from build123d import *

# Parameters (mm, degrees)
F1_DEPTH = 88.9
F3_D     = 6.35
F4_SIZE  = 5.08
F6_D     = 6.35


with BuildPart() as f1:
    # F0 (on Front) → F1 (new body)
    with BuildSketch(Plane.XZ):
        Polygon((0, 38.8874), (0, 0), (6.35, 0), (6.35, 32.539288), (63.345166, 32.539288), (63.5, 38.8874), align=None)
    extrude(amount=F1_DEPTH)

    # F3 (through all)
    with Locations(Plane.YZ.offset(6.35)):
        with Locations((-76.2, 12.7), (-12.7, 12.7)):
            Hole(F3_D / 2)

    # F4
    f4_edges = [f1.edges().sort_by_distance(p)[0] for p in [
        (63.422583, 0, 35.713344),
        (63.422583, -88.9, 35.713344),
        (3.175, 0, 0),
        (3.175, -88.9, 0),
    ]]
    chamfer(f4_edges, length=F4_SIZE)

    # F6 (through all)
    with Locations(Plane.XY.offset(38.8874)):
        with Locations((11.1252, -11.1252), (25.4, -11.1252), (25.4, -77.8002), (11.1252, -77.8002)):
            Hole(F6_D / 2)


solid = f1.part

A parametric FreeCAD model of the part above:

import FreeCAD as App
import Part
import Sketcher
from FreeCAD import Vector
Q = App.Units.Quantity


def edges_at(feature, points):
    """Names of the edges that pass closest to the given points."""
    edges = feature.Shape.Edges
    near = lambda p: min(range(len(edges)), key=lambda i: edges[i].distToShape(Part.Vertex(*p))[0])
    return sorted({f"Edge{near(p) + 1}" for p in points})

doc = App.newDocument("Part")
body = doc.addObject("PartDesign::Body", "Body")

# Sketch on XZ plane
sketch1 = body.newObject("Sketcher::SketchObject", "Sketch")
sketch1.AttachmentSupport = (doc.getObject("XZ_Plane"), [""])
sketch1.MapMode = "FlatFace"
sketch1.addGeometry(Part.LineSegment(Vector(0, 39, 0), Vector(0, 0, 0)), False)
sketch1.addGeometry(Part.LineSegment(Vector(0, 0, 0), Vector(6, 0, 0)), False)
sketch1.addGeometry(Part.LineSegment(Vector(6, 0, 0), Vector(6, 33, 0)), False)
sketch1.addGeometry(Part.LineSegment(Vector(6, 33, 0), Vector(63, 33, 0)), False)
sketch1.addGeometry(Part.LineSegment(Vector(63, 33, 0), Vector(64, 39, 0)), False)
sketch1.addGeometry(Part.LineSegment(Vector(64, 39, 0), Vector(0, 39, 0)), False)
sketch1.addConstraint(Sketcher.Constraint("Coincident", 0, 2, 1, 1))
sketch1.addConstraint(Sketcher.Constraint("Coincident", 1, 2, 2, 1))
sketch1.addConstraint(Sketcher.Constraint("Coincident", 2, 2, 3, 1))
sketch1.addConstraint(Sketcher.Constraint("Coincident", 3, 2, 4, 1))
sketch1.addConstraint(Sketcher.Constraint("Coincident", 4, 2, 5, 1))
sketch1.addConstraint(Sketcher.Constraint("Coincident", 5, 2, 0, 1))
sketch1.addConstraint(Sketcher.Constraint("Vertical", 0))
sketch1.addConstraint(Sketcher.Constraint("Horizontal", 1))
sketch1.addConstraint(Sketcher.Constraint("Vertical", 2))
sketch1.addConstraint(Sketcher.Constraint("Horizontal", 3))
sketch1.addConstraint(Sketcher.Constraint("Horizontal", 5))
sketch1.addConstraint(Sketcher.Constraint("Coincident", 0, 2, -1, 1))
sketch1.addConstraint(Sketcher.Constraint("DistanceX", 5, 2, 5, 1, Q("2.5 in")))
sketch1.addConstraint(Sketcher.Constraint("DistanceX", 1, 1, 1, 2, Q("0.25 in")))
sketch1.addConstraint(Sketcher.Constraint("Distance", 4, Q("0.25 in")))
sketch1.addConstraint(Sketcher.Constraint("DistanceY", 0, 2, 0, 1, Q("1.531 in")))
sketch1.addConstraint(Sketcher.Constraint("DistanceX", 3, 1, 3, 2, 56.995166))
pad1 = body.newObject("PartDesign::Pad", "Pad")
pad1.Profile = sketch1
pad1.Length = Q("3.5 in")

# Sketch on YZ plane
sketch2 = body.newObject("Sketcher::SketchObject", "Sketch001")
sketch2.AttachmentSupport = (doc.getObject("YZ_Plane"), [""])
sketch2.MapMode = "FlatFace"
sketch2.AttachmentOffset = App.Placement(Vector(0, 0, 0.25 * 25.4), App.Rotation())
sketch2.addGeometry(Part.Circle(Vector(-76.2, 12.7, 0), Vector(0, 0, 1), 3.2), False)
sketch2.addGeometry(Part.Circle(Vector(-12.7, 12.7, 0), Vector(0, 0, 1), 3.2), False)
sketch2.addConstraint(Sketcher.Constraint("Equal", 0, 1))
sketch2.addConstraint(Sketcher.Constraint("Horizontal", 0, 3, 1, 3))
sketch2.addConstraint(Sketcher.Constraint("Diameter", 0, Q("0.25 in")))
sketch2.addConstraint(Sketcher.Constraint("DistanceX", 0, 3, -1, 1, Q("3 in")))
sketch2.addConstraint(Sketcher.Constraint("DistanceY", -1, 1, 0, 3, Q("0.5 in")))
sketch2.addConstraint(Sketcher.Constraint("DistanceX", 1, 3, -1, 1, Q("0.5 in")))
doc.recompute()
hole = body.newObject("PartDesign::Hole", "Hole")
hole.Profile = sketch2
hole.ThreadType = "None"
hole.Diameter = Q("0.25 in")
hole.DepthType = "ThroughAll"
doc.recompute()

chamfer = body.newObject("PartDesign::Chamfer", "Chamfer")
chamfer.Base = (hole, edges_at(hole, [
    (63.423, 0, 35.713),
    (63.423, -88.9, 35.713),
    (3.175, 0, 0),
    (3.175, -88.9, 0),
]))
chamfer.Size = Q("0.2 in")

# Sketch on XY plane
sketch3 = body.newObject("Sketcher::SketchObject", "Sketch002")
sketch3.AttachmentSupport = (doc.getObject("XY_Plane"), [""])
sketch3.MapMode = "FlatFace"
sketch3.AttachmentOffset = App.Placement(Vector(0, 0, 1.531 * 25.4), App.Rotation())
sketch3.addGeometry(Part.Circle(Vector(11.1, -11.1, 0), Vector(0, 0, 1), 3.2), False)
sketch3.addGeometry(Part.Circle(Vector(25.4, -11.1, 0), Vector(0, 0, 1), 3.2), False)
sketch3.addGeometry(Part.Circle(Vector(25.4, -77.8, 0), Vector(0, 0, 1), 3.2), False)
sketch3.addGeometry(Part.Circle(Vector(11.1, -77.8, 0), Vector(0, 0, 1), 3.2), False)
sketch3.addConstraint(Sketcher.Constraint("Equal", 0, 1))
sketch3.addConstraint(Sketcher.Constraint("Equal", 1, 2))
sketch3.addConstraint(Sketcher.Constraint("Equal", 2, 3))
sketch3.addConstraint(Sketcher.Constraint("Horizontal", 0, 3, 1, 3))
sketch3.addConstraint(Sketcher.Constraint("Horizontal", 2, 3, 3, 3))
sketch3.addConstraint(Sketcher.Constraint("Vertical", 1, 3, 2, 3))
sketch3.addConstraint(Sketcher.Constraint("Vertical", 0, 3, 3, 3))
sketch3.addConstraint(Sketcher.Constraint("Diameter", 0, Q("0.25 in")))
sketch3.addConstraint(Sketcher.Constraint("DistanceX", -1, 1, 1, 3, Q("1 in")))
sketch3.addConstraint(Sketcher.Constraint("DistanceX", -1, 1, 0, 3, Q("0.438 in")))
sketch3.addConstraint(Sketcher.Constraint("DistanceY", 0, 3, -1, 1, Q("0.438 in")))
sketch3.addConstraint(Sketcher.Constraint("DistanceY", 2, 3, -1, 1, Q("3.063 in")))
doc.recompute()
hole2 = body.newObject("PartDesign::Hole", "Hole001")
hole2.Profile = sketch3
hole2.ThreadType = "None"
hole2.Diameter = Q("0.25 in")
hole2.DepthType = "ThroughAll"

doc.recompute()
